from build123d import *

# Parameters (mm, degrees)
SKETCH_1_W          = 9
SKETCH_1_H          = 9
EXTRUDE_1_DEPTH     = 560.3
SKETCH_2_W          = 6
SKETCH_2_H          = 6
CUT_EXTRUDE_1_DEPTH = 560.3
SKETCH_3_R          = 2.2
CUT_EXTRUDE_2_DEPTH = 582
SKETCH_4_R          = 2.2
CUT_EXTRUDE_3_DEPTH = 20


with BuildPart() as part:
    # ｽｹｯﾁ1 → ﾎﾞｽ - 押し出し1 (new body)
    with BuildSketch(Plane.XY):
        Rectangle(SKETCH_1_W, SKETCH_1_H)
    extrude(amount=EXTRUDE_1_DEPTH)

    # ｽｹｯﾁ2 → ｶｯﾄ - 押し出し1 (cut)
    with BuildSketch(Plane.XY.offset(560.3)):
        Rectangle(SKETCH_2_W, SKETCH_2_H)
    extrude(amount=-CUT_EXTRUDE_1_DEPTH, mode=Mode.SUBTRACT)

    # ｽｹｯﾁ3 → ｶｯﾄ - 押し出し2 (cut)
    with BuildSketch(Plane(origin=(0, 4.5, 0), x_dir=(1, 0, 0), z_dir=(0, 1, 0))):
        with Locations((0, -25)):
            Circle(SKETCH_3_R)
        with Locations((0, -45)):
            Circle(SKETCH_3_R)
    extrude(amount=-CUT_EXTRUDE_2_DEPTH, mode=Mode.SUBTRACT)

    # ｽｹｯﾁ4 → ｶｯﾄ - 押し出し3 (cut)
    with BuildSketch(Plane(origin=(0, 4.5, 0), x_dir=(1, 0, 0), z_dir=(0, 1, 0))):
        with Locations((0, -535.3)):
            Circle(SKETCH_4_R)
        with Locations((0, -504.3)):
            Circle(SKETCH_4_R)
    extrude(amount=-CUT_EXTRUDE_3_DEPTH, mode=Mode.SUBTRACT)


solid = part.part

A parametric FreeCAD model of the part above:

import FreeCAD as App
import Part
import Sketcher
from FreeCAD import Vector

doc = App.newDocument("Part")
params = doc.addObject("Spreadsheet::Sheet", "Params")
for row, (alias, value) in enumerate([
    ("sketch1_width", "9 mm"),
    ("pad1_length", "560.3 mm"),
    ("sketch2_width", "6 mm"),
    ("pocket1_length", "560.3 mm"),
    ("sketch3_diameter", "4.4 mm"),
    ("pocket2_length", "582 mm"),
    ("sketch4_diameter", "4.4 mm"),
    ("pocket3_length", "20 mm"),
], start=1):
    params.set(f"A{row}", alias)
    params.set(f"B{row}", "=" + value)
    params.setAlias(f"B{row}", alias)

body = doc.addObject("PartDesign::Body", "Body")

# Sketch on XY plane
sketch1 = doc.addObject("Sketcher::SketchObject", "Sketch")
body.addObject(sketch1)
sketch1.AttachmentSupport = (doc.XY_Plane, [""])
sketch1.MapMode = "FlatFace"
sketch1.addGeometry(Part.LineSegment(Vector(-4.5, 4.5, 0), Vector(-4.5, -4.5, 0)), False)
sketch1.addGeometry(Part.LineSegment(Vector(-4.5, -4.5, 0), Vector(4.5, -4.5, 0)), False)
sketch1.addGeometry(Part.LineSegment(Vector(4.5, -4.5, 0), Vector(4.5, 4.5, 0)), False)
sketch1.addGeometry(Part.LineSegment(Vector(4.5, 4.5, 0), Vector(-4.5, 4.5, 0)), False)
sketch1.addConstraint(Sketcher.Constraint("Coincident", 0, 2, 1, 1))
sketch1.addConstraint(Sketcher.Constraint("Coincident", 1, 2, 2, 1))
sketch1.addConstraint(Sketcher.Constraint("Coincident", 2, 2, 3, 1))
sketch1.addConstraint(Sketcher.Constraint("Coincident", 3, 2, 0, 1))
sketch1.addConstraint(Sketcher.Constraint("Vertical", 0))
sketch1.addConstraint(Sketcher.Constraint("Horizontal", 1))
sketch1.addConstraint(Sketcher.Constraint("Vertical", 2))
sketch1.addConstraint(Sketcher.Constraint("Horizontal", 3))
sketch1.addConstraint(Sketcher.Constraint("Symmetric", 0, 2, 2, 2, -1, 1))
sketch1.addConstraint(Sketcher.Constraint("Equal", 3, 0))
sketch1.addConstraint(Sketcher.Constraint("DistanceX", 1, 1, 1, 2, 9.0))
sketch1.setExpression("Constraints[10]", "Params.sketch1_width")
pad1 = doc.addObject("PartDesign::Pad", "Pad")
body.addObject(pad1)
pad1.Profile = sketch1
pad1.setExpression("Length", "Params.pad1_length")

# Sketch on XY plane
sketch2 = doc.addObject("Sketcher::SketchObject", "Sketch001")
body.addObject(sketch2)
sketch2.AttachmentSupport = (doc.XY_Plane, [""])
sketch2.MapMode = "FlatFace"
sketch2.AttachmentOffset = App.Placement(Vector(0, 0, 560.3), App.Rotation())
sketch2.addGeometry(Part.LineSegment(Vector(-3, 3, 0), Vector(-3, -3, 0)), False)
sketch2.addGeometry(Part.LineSegment(Vector(-3, -3, 0), Vector(3, -3, 0)), False)
sketch2.addGeometry(Part.LineSegment(Vector(3, -3, 0), Vector(3, 3, 0)), False)
sketch2.addGeometry(Part.LineSegment(Vector(3, 3, 0), Vector(-3, 3, 0)), False)
sketch2.addConstraint(Sketcher.Constraint("Coincident", 0, 2, 1, 1))
sketch2.addConstraint(Sketcher.Constraint("Coincident", 1, 2, 2, 1))
sketch2.addConstraint(Sketcher.Constraint("Coincident", 2, 2, 3, 1))
sketch2.addConstraint(Sketcher.Constraint("Coincident", 3, 2, 0, 1))
sketch2.addConstraint(Sketcher.Constraint("Vertical", 0))
sketch2.addConstraint(Sketcher.Constraint("Horizontal", 1))
sketch2.addConstraint(Sketcher.Constraint("Vertical", 2))
sketch2.addConstraint(Sketcher.Constraint("Horizontal", 3))
sketch2.addConstraint(Sketcher.Constraint("Symmetric", 0, 2, 2, 2, -1, 1))
sketch2.addConstraint(Sketcher.Constraint("Equal", 3, 0))
sketch2.addConstraint(Sketcher.Constraint("DistanceX", 1, 1, 1, 2, 6.0))
sketch2.setExpression("Constraints[10]", "Params.sketch2_width")
pocket1 = doc.addObject("PartDesign::Pocket", "Pocket")
body.addObject(pocket1)
pocket1.Profile = sketch2
pocket1.setExpression("Length", "Params.pocket1_length")

# Sketch on XZ plane
sketch3 = doc.addObject("Sketcher::SketchObject", "Sketch002")
body.addObject(sketch3)
sketch3.AttachmentSupport = (doc.XZ_Plane, [""])
sketch3.MapMode = "FlatFace"
sketch3.AttachmentOffset = App.Placement(Vector(0, 0, -4.5), App.Rotation())
sketch3.addGeometry(Part.Circle(Vector(0, 25, 0), Vector(0, 0, 1), 2.2), False)
sketch3.addGeometry(Part.Circle(Vector(0, 45, 0), Vector(0, 0, 1), 2.2), False)
sketch3.addConstraint(Sketcher.Constraint("Equal", 0, 1))
sketch3.addConstraint(Sketcher.Constraint("PointOnObject", 0, 3, -2))
sketch3.addConstraint(Sketcher.Constraint("PointOnObject", 1, 3, -2))
sketch3.addConstraint(Sketcher.Constraint("Diameter", 0, 4.4))
sketch3.addConstraint(Sketcher.Constraint("DistanceY", -1, 1, 0, 3, 25.0))
sketch3.addConstraint(Sketcher.Constraint("DistanceY", -1, 1, 1, 3, 45.0))
sketch3.setExpression("Constraints[3]", "Params.sketch3_diameter")
pocket2 = doc.addObject("PartDesign::Pocket", "Pocket001")
body.addObject(pocket2)
pocket2.Profile = sketch3
pocket2.setExpression("Length", "Params.pocket2_length")
pocket2.Reversed = True

# Sketch on XZ plane
sketch4 = doc.addObject("Sketcher::SketchObject", "Sketch003")
body.addObject(sketch4)
sketch4.AttachmentSupport = (doc.XZ_Plane, [""])
sketch4.MapMode = "FlatFace"
sketch4.AttachmentOffset = App.Placement(Vector(0, 0, -4.5), App.Rotation())
sketch4.addGeometry(Part.Circle(Vector(0, 535.3, 0), Vector(0, 0, 1), 2.2), False)
sketch4.addGeometry(Part.Circle(Vector(0, 504.3, 0), Vector(0, 0, 1), 2.2), False)
sketch4.addConstraint(Sketcher.Constraint("Equal", 0, 1))
sketch4.addConstraint(Sketcher.Constraint("PointOnObject", 0, 3, -2))
sketch4.addConstraint(Sketcher.Constraint("PointOnObject", 1, 3, -2))
sketch4.addConstraint(Sketcher.Constraint("Diameter", 0, 4.4))
sketch4.addConstraint(Sketcher.Constraint("DistanceY", 1, 3, 0, 3, 31.0))
sketch4.addConstraint(Sketcher.Constraint("DistanceY", -1, 1, 0, 3, 535.3))
sketch4.setExpression("Constraints[3]", "Params.sketch4_diameter")
pocket3 = doc.addObject("PartDesign::Pocket", "Pocket002")
body.addObject(pocket3)
pocket3.Profile = sketch4
pocket3.setExpression("Length", "Params.pocket3_length")
pocket3.Reversed = True

doc.recompute()
